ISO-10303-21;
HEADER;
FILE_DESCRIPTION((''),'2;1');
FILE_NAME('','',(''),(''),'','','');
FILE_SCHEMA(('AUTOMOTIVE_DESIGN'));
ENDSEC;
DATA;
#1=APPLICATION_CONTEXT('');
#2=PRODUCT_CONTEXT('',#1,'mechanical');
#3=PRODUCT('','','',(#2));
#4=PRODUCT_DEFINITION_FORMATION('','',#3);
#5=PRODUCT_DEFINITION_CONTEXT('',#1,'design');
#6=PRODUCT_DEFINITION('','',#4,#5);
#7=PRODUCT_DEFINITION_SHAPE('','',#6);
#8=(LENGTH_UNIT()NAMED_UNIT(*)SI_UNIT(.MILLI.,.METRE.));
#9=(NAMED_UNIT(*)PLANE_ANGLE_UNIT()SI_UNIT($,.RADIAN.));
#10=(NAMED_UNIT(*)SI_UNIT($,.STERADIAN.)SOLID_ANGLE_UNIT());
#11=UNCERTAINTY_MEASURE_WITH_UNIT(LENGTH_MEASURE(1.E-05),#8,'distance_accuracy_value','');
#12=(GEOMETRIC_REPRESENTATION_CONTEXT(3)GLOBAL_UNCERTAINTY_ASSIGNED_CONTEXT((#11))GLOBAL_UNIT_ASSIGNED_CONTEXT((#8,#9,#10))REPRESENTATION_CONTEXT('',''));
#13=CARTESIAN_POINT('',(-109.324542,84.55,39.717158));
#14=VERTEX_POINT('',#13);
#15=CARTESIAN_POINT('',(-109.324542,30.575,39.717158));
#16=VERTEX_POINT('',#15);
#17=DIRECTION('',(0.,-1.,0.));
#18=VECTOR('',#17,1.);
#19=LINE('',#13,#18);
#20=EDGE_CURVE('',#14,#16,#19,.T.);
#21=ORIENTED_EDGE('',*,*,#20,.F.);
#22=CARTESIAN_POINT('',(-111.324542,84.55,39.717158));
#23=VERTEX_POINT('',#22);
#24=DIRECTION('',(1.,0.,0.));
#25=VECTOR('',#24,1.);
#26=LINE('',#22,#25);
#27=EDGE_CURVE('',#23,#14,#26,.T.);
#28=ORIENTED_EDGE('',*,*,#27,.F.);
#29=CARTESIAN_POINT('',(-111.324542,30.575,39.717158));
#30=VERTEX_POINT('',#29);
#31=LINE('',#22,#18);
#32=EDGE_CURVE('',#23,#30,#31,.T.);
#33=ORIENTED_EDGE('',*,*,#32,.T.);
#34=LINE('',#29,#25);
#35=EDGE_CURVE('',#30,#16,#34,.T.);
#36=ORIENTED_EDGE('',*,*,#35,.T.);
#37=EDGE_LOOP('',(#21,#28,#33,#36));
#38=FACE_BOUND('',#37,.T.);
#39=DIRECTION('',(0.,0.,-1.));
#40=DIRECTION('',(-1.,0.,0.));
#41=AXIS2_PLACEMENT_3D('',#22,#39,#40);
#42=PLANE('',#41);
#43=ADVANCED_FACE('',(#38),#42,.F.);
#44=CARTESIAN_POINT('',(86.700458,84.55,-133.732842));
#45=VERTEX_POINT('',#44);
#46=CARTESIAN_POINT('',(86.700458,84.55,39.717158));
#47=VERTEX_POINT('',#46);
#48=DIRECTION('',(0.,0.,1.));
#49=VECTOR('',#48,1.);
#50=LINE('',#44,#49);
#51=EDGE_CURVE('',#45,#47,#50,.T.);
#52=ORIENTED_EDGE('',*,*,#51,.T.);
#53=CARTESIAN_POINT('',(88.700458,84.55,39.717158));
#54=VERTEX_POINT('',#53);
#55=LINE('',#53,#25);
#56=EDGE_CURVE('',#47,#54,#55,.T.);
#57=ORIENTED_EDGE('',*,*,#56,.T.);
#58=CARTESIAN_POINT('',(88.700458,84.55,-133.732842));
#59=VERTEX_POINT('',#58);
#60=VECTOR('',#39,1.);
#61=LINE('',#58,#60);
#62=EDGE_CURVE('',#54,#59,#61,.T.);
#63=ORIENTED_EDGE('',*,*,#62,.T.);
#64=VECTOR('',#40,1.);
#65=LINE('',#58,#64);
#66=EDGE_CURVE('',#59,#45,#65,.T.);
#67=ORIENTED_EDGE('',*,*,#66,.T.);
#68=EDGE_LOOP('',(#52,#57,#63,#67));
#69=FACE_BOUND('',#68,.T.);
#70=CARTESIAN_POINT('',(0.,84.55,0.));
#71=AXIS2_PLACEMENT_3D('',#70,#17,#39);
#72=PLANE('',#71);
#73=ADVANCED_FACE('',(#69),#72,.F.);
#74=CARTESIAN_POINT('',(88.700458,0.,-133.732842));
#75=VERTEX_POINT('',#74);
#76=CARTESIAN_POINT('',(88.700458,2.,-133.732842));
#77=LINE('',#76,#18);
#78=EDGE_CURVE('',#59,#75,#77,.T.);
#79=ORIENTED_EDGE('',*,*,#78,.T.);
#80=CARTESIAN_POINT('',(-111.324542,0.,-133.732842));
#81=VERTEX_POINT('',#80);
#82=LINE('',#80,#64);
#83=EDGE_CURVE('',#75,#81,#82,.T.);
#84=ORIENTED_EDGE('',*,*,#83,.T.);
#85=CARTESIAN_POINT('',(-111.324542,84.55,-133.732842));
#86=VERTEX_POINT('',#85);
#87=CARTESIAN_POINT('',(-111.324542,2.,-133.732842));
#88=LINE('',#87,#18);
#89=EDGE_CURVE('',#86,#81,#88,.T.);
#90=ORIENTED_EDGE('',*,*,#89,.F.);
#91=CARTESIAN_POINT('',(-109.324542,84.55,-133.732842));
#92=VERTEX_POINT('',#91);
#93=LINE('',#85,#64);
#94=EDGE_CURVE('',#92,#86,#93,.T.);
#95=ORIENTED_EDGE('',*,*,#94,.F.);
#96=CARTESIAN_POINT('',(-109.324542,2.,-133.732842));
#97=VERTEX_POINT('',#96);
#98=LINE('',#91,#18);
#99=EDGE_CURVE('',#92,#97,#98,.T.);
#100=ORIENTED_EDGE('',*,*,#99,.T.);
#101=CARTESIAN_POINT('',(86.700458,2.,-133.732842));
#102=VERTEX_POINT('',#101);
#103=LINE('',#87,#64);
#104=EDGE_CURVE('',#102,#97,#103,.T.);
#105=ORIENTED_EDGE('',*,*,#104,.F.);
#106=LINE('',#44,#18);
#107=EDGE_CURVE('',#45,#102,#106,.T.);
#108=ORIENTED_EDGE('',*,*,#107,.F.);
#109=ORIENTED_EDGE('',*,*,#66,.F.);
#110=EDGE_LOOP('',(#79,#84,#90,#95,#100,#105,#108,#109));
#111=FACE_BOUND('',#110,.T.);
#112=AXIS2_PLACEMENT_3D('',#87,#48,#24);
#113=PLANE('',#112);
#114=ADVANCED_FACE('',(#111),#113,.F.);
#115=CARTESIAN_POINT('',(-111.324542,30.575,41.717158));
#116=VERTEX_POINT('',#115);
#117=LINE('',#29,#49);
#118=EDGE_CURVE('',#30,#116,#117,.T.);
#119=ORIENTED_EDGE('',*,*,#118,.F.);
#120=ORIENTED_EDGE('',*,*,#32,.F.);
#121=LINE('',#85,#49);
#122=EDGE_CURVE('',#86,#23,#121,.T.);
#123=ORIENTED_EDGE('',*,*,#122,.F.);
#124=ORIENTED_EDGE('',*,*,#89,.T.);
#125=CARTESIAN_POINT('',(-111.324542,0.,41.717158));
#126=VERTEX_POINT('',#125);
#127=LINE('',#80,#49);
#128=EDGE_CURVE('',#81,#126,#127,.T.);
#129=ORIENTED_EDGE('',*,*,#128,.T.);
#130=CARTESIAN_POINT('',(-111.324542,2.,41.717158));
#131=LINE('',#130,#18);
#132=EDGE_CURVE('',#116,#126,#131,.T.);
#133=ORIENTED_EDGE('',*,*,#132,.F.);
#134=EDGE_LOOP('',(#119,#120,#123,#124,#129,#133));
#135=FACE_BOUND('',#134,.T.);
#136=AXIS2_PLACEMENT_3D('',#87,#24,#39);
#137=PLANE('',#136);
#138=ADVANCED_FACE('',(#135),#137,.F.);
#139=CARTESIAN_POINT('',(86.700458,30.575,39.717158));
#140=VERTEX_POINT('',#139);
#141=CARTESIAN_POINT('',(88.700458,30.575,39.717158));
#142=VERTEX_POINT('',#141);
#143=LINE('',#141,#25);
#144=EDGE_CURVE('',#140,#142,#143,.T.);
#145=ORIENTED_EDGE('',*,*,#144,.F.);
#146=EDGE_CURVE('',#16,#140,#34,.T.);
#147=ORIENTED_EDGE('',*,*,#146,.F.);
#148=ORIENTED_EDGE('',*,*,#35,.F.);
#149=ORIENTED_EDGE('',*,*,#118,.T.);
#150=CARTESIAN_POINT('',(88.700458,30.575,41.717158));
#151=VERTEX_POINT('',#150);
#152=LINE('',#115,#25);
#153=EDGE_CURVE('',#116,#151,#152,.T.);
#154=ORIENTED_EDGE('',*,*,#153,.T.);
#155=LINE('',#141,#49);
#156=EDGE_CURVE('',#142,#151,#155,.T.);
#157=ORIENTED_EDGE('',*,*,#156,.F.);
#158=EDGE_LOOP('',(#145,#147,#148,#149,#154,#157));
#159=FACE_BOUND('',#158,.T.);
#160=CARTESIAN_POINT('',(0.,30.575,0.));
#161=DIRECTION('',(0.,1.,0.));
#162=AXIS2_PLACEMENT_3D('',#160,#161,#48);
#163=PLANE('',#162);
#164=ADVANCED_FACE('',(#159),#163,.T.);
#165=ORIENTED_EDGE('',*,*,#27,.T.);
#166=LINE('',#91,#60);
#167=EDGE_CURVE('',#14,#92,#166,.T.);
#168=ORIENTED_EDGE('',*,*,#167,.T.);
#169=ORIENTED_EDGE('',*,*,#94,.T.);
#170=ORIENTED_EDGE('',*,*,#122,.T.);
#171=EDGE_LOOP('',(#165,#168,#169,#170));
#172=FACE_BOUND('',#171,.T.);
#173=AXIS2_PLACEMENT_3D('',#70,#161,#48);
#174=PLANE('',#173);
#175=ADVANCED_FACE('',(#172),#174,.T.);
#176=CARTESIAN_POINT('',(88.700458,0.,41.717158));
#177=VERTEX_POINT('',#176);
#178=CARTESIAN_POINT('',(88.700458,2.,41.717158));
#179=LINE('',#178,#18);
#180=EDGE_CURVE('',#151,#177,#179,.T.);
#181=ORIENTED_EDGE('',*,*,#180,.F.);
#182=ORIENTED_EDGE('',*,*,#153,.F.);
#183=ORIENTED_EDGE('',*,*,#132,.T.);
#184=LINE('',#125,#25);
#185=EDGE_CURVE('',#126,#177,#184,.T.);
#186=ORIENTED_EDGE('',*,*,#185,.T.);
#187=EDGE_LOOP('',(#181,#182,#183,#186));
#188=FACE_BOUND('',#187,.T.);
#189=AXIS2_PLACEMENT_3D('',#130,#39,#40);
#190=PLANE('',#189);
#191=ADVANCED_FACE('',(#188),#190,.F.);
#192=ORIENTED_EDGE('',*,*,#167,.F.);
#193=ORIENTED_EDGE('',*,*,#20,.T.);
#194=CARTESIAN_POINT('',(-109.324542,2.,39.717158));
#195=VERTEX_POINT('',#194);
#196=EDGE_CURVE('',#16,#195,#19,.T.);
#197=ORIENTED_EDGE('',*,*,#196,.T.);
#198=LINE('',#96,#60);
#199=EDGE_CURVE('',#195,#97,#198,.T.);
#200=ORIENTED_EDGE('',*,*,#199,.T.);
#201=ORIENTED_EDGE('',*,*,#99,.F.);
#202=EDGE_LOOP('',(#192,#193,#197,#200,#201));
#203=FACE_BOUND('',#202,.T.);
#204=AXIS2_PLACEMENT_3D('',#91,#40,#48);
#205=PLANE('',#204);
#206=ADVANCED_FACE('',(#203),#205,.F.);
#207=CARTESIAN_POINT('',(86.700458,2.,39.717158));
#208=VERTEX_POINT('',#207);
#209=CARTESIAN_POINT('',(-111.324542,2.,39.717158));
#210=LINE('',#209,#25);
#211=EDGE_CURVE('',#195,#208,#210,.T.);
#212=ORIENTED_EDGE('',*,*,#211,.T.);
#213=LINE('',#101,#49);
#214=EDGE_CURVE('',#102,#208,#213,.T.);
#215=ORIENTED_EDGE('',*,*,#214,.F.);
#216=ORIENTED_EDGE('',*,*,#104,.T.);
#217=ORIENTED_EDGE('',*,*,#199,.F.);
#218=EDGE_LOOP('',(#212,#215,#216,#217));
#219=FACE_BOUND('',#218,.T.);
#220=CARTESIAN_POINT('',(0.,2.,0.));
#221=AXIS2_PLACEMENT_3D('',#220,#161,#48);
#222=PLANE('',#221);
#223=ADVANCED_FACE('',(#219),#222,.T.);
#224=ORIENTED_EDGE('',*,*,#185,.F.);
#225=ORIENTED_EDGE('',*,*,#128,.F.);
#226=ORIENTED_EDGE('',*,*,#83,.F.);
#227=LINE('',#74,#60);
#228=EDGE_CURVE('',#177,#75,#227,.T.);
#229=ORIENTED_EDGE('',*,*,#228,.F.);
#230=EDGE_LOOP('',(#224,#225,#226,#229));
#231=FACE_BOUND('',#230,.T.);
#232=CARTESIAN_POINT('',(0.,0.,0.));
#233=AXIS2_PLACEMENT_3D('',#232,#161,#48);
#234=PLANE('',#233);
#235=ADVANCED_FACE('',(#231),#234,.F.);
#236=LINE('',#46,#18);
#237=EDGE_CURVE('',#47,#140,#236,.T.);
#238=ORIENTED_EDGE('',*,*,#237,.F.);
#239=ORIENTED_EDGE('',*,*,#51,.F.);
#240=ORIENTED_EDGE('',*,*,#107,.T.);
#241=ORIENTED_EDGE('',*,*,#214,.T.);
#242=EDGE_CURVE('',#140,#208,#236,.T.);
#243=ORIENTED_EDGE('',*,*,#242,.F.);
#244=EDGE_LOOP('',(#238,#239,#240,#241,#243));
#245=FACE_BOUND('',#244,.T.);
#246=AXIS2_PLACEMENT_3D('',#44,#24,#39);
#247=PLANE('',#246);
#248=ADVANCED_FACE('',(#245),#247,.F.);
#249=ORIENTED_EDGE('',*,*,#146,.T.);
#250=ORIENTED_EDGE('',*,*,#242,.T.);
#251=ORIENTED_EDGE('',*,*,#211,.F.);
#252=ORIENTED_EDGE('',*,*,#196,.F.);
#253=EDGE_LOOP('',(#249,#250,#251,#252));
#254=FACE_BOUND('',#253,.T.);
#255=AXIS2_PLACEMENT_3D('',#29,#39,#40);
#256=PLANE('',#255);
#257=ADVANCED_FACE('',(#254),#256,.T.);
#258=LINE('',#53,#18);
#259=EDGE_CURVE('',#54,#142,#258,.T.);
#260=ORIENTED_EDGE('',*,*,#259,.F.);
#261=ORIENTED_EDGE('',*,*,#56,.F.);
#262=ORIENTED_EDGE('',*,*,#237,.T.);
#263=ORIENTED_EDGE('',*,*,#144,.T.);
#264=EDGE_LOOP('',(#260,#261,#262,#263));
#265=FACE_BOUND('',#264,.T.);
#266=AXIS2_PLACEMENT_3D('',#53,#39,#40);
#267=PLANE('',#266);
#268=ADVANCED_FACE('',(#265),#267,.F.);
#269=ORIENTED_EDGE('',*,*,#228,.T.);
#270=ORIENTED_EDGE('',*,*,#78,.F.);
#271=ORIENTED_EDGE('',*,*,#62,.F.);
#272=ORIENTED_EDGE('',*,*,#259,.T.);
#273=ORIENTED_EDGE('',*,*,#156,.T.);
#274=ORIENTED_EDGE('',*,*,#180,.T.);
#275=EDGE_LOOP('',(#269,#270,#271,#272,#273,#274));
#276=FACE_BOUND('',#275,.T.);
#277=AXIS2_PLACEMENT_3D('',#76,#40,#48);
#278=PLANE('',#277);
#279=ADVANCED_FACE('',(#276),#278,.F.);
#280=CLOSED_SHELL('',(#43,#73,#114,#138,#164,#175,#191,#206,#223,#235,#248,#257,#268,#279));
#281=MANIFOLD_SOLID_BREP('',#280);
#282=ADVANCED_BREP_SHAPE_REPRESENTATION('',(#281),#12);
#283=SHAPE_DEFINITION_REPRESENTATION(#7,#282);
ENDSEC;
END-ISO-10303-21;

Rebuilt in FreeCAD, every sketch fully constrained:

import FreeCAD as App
import Part
import Sketcher

V = App.Vector
Q = App.Units.Quantity

doc = App.newDocument("Part")
body = doc.addObject("PartDesign::Body", "Body")

# Sketch on XZ plane
sketch1 = body.newObject("Sketcher::SketchObject", "Sketch")
sketch1.AttachmentSupport = (doc.getObject("XZ_Plane"), [""])
sketch1.MapMode = "FlatFace"
sketch1.addGeometry(Part.LineSegment(V(-111, -134, 0), V(-111, 42, 0)), False)
sketch1.addGeometry(Part.LineSegment(V(-111, 42, 0), V(89, 42, 0)), False)
sketch1.addGeometry(Part.LineSegment(V(89, 42, 0), V(89, -134, 0)), False)
sketch1.addGeometry(Part.LineSegment(V(89, -134, 0), V(-111, -134, 0)), False)
sketch1.addConstraint(Sketcher.Constraint("Coincident", 0, 2, 1, 1))
sketch1.addConstraint(Sketcher.Constraint("Coincident", 1, 2, 2, 1))
sketch1.addConstraint(Sketcher.Constraint("Coincident", 2, 2, 3, 1))
sketch1.addConstraint(Sketcher.Constraint("Coincident", 3, 2, 0, 1))
sketch1.addConstraint(Sketcher.Constraint("Vertical", 0))
sketch1.addConstraint(Sketcher.Constraint("Horizontal", 1))
sketch1.addConstraint(Sketcher.Constraint("Vertical", 2))
sketch1.addConstraint(Sketcher.Constraint("Horizontal", 3))
sketch1.addConstraint(Sketcher.Constraint("DistanceX", 1, 1, 1, 2, Q("7.875 in")))
sketch1.addConstraint(Sketcher.Constraint("DistanceY", 0, 1, 0, 2, 175.45))
sketch1.addConstraint(Sketcher.Constraint("DistanceX", 0, 2, -1, 1, 111.324542))
sketch1.addConstraint(Sketcher.Constraint("DistanceY", -1, 1, 0, 2, 41.717158))
pad1 = body.newObject("PartDesign::Pad", "Pad")
pad1.Profile = sketch1
pad1.Length = 2
pad1.Reversed = True

# Sketch on XZ plane
sketch2 = body.newObject("Sketcher::SketchObject", "Sketch001")
sketch2.AttachmentSupport = (doc.getObject("XZ_Plane"), [""])
sketch2.MapMode = "FlatFace"
sketch2.AttachmentOffset = App.Placement(V(0, 0, -2), App.Rotation())
sketch2.addGeometry(Part.LineSegment(V(-111.3, -133.7, 0), V(-111.3, 39.7, 0)), False)
sketch2.addGeometry(Part.LineSegment(V(-111.3, 39.7, 0), V(-109.3, 39.7, 0)), False)
sketch2.addGeometry(Part.LineSegment(V(-109.3, 39.7, 0), V(-109.3, -133.7, 0)), False)
sketch2.addGeometry(Part.LineSegment(V(-109.3, -133.7, 0), V(-111.3, -133.7, 0)), False)
sketch2.addGeometry(Part.LineSegment(V(86.7, -133.7, 0), V(86.7, 39.7, 0)), False)
sketch2.addGeometry(Part.LineSegment(V(86.7, 39.7, 0), V(88.7, 39.7, 0)), False)
sketch2.addGeometry(Part.LineSegment(V(88.7, 39.7, 0), V(88.7, -133.7, 0)), False)
sketch2.addGeometry(Part.LineSegment(V(88.7, -133.7, 0), V(86.7, -133.7, 0)), False)
sketch2.addConstraint(Sketcher.Constraint("Coincident", 0, 2, 1, 1))
sketch2.addConstraint(Sketcher.Constraint("Coincident", 1, 2, 2, 1))
sketch2.addConstraint(Sketcher.Constraint("Coincident", 2, 2, 3, 1))
sketch2.addConstraint(Sketcher.Constraint("Coincident", 3, 2, 0, 1))
sketch2.addConstraint(Sketcher.Constraint("Coincident", 4, 2, 5, 1))
sketch2.addConstraint(Sketcher.Constraint("Coincident", 5, 2, 6, 1))
sketch2.addConstraint(Sketcher.Constraint("Coincident", 6, 2, 7, 1))
sketch2.addConstraint(Sketcher.Constraint("Coincident", 7, 2, 4, 1))
sketch2.addConstraint(Sketcher.Constraint("Vertical", 0))
sketch2.addConstraint(Sketcher.Constraint("Horizontal", 1))
sketch2.addConstraint(Sketcher.Constraint("Vertical", 2))
sketch2.addConstraint(Sketcher.Constraint("Horizontal", 3))
sketch2.addConstraint(Sketcher.Constraint("Vertical", 4))
sketch2.addConstraint(Sketcher.Constraint("Horizontal", 5))
sketch2.addConstraint(Sketcher.Constraint("Vertical", 6))
sketch2.addConstraint(Sketcher.Constraint("Horizontal", 7))
sketch2.addConstraint(Sketcher.Constraint("Horizontal", 1, 2, 4, 2))
sketch2.addConstraint(Sketcher.Constraint("Horizontal", 3, 2, 6, 2))
sketch2.addConstraint(Sketcher.Constraint("Equal", 3, 5))
sketch2.addConstraint(Sketcher.Constraint("DistanceX", 0, 2, 5, 2, Q("7.875 in")))
sketch2.addConstraint(Sketcher.Constraint("DistanceX", 1, 1, 1, 2, 2.0))
sketch2.addConstraint(Sketcher.Constraint("DistanceY", 0, 1, 0, 2, 173.45))
sketch2.addConstraint(Sketcher.Constraint("DistanceX", 0, 2, -1, 1, 111.324542))
sketch2.addConstraint(Sketcher.Constraint("DistanceY", -1, 1, 0, 2, 39.717158))
pad2 = body.newObject("PartDesign::Pad", "Pad001")
pad2.Profile = sketch2
pad2.Length = Q("3.25 in")
pad2.Reversed = True

# Sketch on XZ plane
sketch3 = body.newObject("Sketcher::SketchObject", "Sketch002")
sketch3.AttachmentSupport = (doc.getObject("XZ_Plane"), [""])
sketch3.MapMode = "FlatFace"
sketch3.AttachmentOffset = App.Placement(V(0, 0, -2), App.Rotation())
sketch3.addGeometry(Part.LineSegment(V(-111.3, 39.7, 0), V(-111.3, 41.7, 0)), False)
sketch3.addGeometry(Part.LineSegment(V(-111.3, 41.7, 0), V(88.7, 41.7, 0)), False)
sketch3.addGeometry(Part.LineSegment(V(88.7, 41.7, 0), V(88.7, 39.7, 0)), False)
sketch3.addGeometry(Part.LineSegment(V(88.7, 39.7, 0), V(-111.3, 39.7, 0)), False)
sketch3.addConstraint(Sketcher.Constraint("Coincident", 0, 2, 1, 1))
sketch3.addConstraint(Sketcher.Constraint("Coincident", 1, 2, 2, 1))
sketch3.addConstraint(Sketcher.Constraint("Coincident", 2, 2, 3, 1))
sketch3.addConstraint(Sketcher.Constraint("Coincident", 3, 2, 0, 1))
sketch3.addConstraint(Sketcher.Constraint("Vertical", 0))
sketch3.addConstraint(Sketcher.Constraint("Horizontal", 1))
sketch3.addConstraint(Sketcher.Constraint("Vertical", 2))
sketch3.addConstraint(Sketcher.Constraint("Horizontal", 3))
sketch3.addConstraint(Sketcher.Constraint("DistanceX", 1, 1, 1, 2, Q("7.875 in")))
sketch3.addConstraint(Sketcher.Constraint("DistanceY", 0, 1, 0, 2, 2.0))
sketch3.addConstraint(Sketcher.Constraint("DistanceX", 0, 2, -1, 1, 111.324542))
sketch3.addConstraint(Sketcher.Constraint("DistanceY", -1, 1, 0, 2, 41.717158))
pad3 = body.newObject("PartDesign::Pad", "Pad002")
pad3.Profile = sketch3
pad3.Length = Q("1.125 in")
pad3.Reversed = True

doc.recompute()
